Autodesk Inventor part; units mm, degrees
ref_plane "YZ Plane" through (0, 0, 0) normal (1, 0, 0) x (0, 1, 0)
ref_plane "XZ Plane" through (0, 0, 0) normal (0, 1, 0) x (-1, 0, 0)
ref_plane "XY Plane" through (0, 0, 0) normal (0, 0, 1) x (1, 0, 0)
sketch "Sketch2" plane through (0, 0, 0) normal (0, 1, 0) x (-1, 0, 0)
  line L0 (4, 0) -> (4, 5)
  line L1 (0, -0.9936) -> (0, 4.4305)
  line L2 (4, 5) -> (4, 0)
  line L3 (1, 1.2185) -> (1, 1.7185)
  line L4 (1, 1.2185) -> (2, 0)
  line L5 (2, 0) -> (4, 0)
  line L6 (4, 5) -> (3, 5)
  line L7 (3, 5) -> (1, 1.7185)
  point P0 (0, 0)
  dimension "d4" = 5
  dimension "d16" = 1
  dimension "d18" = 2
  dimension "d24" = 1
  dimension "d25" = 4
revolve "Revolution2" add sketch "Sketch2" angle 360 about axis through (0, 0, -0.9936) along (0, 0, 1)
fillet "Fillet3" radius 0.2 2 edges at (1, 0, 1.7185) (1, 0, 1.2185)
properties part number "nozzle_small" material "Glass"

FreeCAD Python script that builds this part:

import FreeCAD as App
import Part
import Sketcher

V = App.Vector


def edges_at(feature, points):
    """Names of the edges that pass closest to the given points."""
    edges = feature.Shape.Edges
    near = lambda p: min(range(len(edges)), key=lambda i: edges[i].distToShape(Part.Vertex(*p))[0])
    return sorted({f"Edge{near(p) + 1}" for p in points})

doc = App.newDocument("Part")
body = doc.addObject("PartDesign::Body", "Body")

sketch1 = body.newObject("Sketcher::SketchObject", "Sketch")
sketch1.AttachmentSupport = (doc.getObject("XZ_Plane"), [""])
sketch1.MapMode = "FlatFace"
sketch1.addGeometry([
    Part.LineSegment(V(-2, 0, 0), V(-4, 0, 0)),
    Part.LineSegment(V(-4, 0, 0), V(-4, 5, 0)),
    Part.LineSegment(V(-4, 5, 0), V(-3, 5, 0)),
    Part.LineSegment(V(-3, 5, 0), V(-1, 1.7, 0)),
    Part.LineSegment(V(-1, 1.7, 0), V(-1, 1.2, 0)),
    Part.LineSegment(V(-1, 1.2, 0), V(-2, 0, 0)),
], False)
sketch1.addConstraint([
    Sketcher.Constraint("Coincident", 0, 2, 1, 1),
    Sketcher.Constraint("Coincident", 1, 2, 2, 1),
    Sketcher.Constraint("Coincident", 2, 2, 3, 1),
    Sketcher.Constraint("Coincident", 3, 2, 4, 1),
    Sketcher.Constraint("Coincident", 4, 2, 5, 1),
    Sketcher.Constraint("Coincident", 5, 2, 0, 1),
    Sketcher.Constraint("Horizontal", 0),
    Sketcher.Constraint("Vertical", 1),
    Sketcher.Constraint("Horizontal", 2),
    Sketcher.Constraint("Vertical", 4),
    Sketcher.Constraint("PointOnObject", 0, 2, -1),
    Sketcher.Constraint("DistanceX", 0, 2, 0, 1, 2.0),
    Sketcher.Constraint("DistanceX", 2, 1, 2, 2, 1.0),
    Sketcher.Constraint("DistanceY", 1, 1, 1, 2, 5.0),
    Sketcher.Constraint("DistanceX", 0, 2, -1, 1, 4.0),
    Sketcher.Constraint("DistanceX", 3, 2, -1, 1, 1.0),
    Sketcher.Constraint("DistanceY", 4, 2, 4, 1, 0.5),
    Sketcher.Constraint("Distance", 3, 3.843),
])
revolution = body.newObject("PartDesign::Revolution", "Revolution")
revolution.Profile = sketch1
revolution.ReferenceAxis = (sketch1, ["V_Axis"])
revolution.Angle = 360
doc.recompute()

fillet = body.newObject("PartDesign::Fillet", "Fillet")
fillet.Base = (revolution, edges_at(revolution, [(1, 0, 1.718), (1, 0, 1.218)]))
fillet.Radius = 0.2

doc.recompute()
